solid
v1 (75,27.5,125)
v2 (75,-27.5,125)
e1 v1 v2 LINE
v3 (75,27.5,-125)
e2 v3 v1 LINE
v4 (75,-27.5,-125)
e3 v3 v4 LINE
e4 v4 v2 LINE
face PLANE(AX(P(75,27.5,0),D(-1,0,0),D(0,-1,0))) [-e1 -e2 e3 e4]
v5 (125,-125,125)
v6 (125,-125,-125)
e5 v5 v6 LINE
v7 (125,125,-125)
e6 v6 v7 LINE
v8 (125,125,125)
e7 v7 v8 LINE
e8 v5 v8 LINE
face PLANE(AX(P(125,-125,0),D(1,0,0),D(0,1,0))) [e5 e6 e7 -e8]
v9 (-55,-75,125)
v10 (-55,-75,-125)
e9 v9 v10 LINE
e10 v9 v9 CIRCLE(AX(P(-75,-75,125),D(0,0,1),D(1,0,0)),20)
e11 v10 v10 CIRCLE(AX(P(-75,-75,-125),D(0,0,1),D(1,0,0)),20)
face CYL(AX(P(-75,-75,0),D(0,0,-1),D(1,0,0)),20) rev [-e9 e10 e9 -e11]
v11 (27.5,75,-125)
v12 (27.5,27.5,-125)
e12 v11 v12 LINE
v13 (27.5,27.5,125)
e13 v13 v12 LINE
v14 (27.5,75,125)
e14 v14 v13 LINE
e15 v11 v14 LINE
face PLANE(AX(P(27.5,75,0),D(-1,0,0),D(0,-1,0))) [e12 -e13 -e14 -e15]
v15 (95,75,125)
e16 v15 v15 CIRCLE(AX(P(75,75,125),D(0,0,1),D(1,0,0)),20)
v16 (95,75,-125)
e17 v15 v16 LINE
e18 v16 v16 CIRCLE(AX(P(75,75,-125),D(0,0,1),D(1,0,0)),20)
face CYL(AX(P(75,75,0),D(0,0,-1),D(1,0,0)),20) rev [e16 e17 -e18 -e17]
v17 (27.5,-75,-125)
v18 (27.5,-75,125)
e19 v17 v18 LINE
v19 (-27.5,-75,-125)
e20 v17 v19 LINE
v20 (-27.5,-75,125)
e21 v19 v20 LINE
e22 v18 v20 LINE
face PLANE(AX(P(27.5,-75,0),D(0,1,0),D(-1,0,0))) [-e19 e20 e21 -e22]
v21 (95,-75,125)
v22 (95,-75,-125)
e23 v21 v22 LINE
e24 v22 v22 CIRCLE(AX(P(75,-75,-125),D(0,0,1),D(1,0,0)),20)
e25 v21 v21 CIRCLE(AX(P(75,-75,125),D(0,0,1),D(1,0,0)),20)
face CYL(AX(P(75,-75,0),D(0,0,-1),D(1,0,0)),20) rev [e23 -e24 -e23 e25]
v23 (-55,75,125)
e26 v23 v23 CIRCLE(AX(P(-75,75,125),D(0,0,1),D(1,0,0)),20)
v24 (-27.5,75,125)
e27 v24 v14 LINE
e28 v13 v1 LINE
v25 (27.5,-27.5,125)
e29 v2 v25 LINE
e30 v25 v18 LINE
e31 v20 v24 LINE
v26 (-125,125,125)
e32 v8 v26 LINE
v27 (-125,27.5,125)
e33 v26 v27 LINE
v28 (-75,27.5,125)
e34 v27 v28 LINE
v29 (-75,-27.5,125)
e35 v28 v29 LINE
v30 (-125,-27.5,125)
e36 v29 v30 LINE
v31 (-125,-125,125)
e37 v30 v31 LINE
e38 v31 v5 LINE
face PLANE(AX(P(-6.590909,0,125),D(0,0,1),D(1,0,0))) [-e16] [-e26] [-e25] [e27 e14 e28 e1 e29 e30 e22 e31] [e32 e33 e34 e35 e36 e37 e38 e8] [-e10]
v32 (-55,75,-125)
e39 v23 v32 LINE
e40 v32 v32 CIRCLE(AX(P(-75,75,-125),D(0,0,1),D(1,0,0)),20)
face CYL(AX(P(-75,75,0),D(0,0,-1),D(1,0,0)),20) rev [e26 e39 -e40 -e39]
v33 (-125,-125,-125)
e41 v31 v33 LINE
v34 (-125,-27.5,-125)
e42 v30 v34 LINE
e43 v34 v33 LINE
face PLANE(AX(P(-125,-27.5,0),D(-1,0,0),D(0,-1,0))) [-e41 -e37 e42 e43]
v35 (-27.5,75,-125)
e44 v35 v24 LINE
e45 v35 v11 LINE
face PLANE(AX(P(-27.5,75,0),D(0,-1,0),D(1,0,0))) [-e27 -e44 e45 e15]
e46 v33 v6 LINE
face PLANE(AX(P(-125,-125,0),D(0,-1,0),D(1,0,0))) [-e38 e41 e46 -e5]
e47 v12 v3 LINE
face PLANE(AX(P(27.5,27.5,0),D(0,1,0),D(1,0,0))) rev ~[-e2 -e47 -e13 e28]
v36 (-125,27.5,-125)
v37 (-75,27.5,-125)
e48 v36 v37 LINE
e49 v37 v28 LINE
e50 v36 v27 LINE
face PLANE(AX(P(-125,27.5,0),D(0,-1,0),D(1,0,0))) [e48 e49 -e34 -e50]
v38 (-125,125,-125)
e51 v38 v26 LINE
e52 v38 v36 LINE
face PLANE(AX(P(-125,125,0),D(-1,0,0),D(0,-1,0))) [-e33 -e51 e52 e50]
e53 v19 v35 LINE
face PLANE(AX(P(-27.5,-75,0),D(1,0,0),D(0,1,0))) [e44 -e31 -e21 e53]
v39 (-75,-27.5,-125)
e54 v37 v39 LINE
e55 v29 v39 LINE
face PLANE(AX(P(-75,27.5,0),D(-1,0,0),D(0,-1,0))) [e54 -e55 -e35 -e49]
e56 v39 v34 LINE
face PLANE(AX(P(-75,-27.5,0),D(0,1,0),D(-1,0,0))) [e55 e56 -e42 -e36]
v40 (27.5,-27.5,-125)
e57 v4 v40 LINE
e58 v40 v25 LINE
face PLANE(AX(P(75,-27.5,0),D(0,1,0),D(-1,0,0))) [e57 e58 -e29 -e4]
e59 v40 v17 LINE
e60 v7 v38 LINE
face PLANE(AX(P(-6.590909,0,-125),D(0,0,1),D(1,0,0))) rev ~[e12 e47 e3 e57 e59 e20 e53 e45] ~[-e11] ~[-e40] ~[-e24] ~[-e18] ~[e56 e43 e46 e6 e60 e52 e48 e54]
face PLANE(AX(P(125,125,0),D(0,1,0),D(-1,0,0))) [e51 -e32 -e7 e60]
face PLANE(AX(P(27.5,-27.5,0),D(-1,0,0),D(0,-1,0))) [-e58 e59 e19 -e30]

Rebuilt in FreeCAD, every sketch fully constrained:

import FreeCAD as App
import Part
import Sketcher


def add_polygon(sketch, points):
    """Adds a closed chain of lines whose ends are joined by coincident constraints."""
    first, n = sketch.GeometryCount, len(points)
    for a, b in zip(points, points[1:] + points[:1]):
        sketch.addGeometry(Part.LineSegment(App.Vector(*a, 0), App.Vector(*b, 0)), False)
    for i in range(n):
        sketch.addConstraint(Sketcher.Constraint("Coincident", first + i, 2, first + (i + 1) % n, 1))

doc = App.newDocument("Part")
body = doc.addObject("PartDesign::Body", "Body")

# Sketch on XY plane
sketch1 = doc.addObject("Sketcher::SketchObject", "Sketch")
body.addObject(sketch1)
sketch1.AttachmentSupport = (doc.XY_Plane, [""])
sketch1.MapMode = "FlatFace"
add_polygon(sketch1, [(125, -125), (125, 125), (-125, 125), (-125, 27.5), (-75, 27.5), (-75, -27.5), (-125, -27.5), (-125, -125)])  # lines 0-7
sketch1.addGeometry(Part.Circle(App.Vector(-75, -75, 0), App.Vector(0, 0, 1), 20), False)  # 8
sketch1.addGeometry(Part.Circle(App.Vector(75, -75, 0), App.Vector(0, 0, 1), 20), False)  # 9
sketch1.addGeometry(Part.Circle(App.Vector(-75, 75, 0), App.Vector(0, 0, 1), 20), False)  # 10
add_polygon(sketch1, [(27.5, -75), (-27.5, -75), (-27.5, 75), (27.5, 75), (27.5, 27.5), (75, 27.5), (75, -27.5), (27.5, -27.5)])  # lines 11-18
sketch1.addGeometry(Part.Circle(App.Vector(75, 75, 0), App.Vector(0, 0, 1), 20), False)  # 19
sketch1.addConstraint(Sketcher.Constraint("Vertical", 0))
sketch1.addConstraint(Sketcher.Constraint("Horizontal", 1))
sketch1.addConstraint(Sketcher.Constraint("Vertical", 2))
sketch1.addConstraint(Sketcher.Constraint("Horizontal", 3))
sketch1.addConstraint(Sketcher.Constraint("Vertical", 4))
sketch1.addConstraint(Sketcher.Constraint("Horizontal", 5))
sketch1.addConstraint(Sketcher.Constraint("Vertical", 6))
sketch1.addConstraint(Sketcher.Constraint("Horizontal", 7))
sketch1.addConstraint(Sketcher.Constraint("Horizontal", 11))
sketch1.addConstraint(Sketcher.Constraint("Vertical", 12))
sketch1.addConstraint(Sketcher.Constraint("Horizontal", 13))
sketch1.addConstraint(Sketcher.Constraint("Vertical", 14))
sketch1.addConstraint(Sketcher.Constraint("Horizontal", 15))
sketch1.addConstraint(Sketcher.Constraint("Vertical", 16))
sketch1.addConstraint(Sketcher.Constraint("Horizontal", 17))
sketch1.addConstraint(Sketcher.Constraint("Vertical", 18))
sketch1.addConstraint(Sketcher.Constraint("Equal", 8, 9))
sketch1.addConstraint(Sketcher.Constraint("Equal", 9, 10))
sketch1.addConstraint(Sketcher.Constraint("Equal", 10, 19))
sketch1.addConstraint(Sketcher.Constraint("Symmetric", 9, 3, 10, 3, -1, 1))
sketch1.addConstraint(Sketcher.Constraint("Symmetric", 8, 3, 19, 3, -1, 1))
sketch1.addConstraint(Sketcher.Constraint("Symmetric", 0, 2, 6, 2, -1, 1))
sketch1.addConstraint(Sketcher.Constraint("Symmetric", 11, 2, 13, 2, -1, 1))
sketch1.addConstraint(Sketcher.Constraint("Symmetric", 4, 2, 15, 2, -1, 1))
sketch1.addConstraint(Sketcher.Constraint("Symmetric", 8, 3, 9, 3, -2))
sketch1.addConstraint(Sketcher.Constraint("Symmetric", 2, 2, 5, 2, -1))
sketch1.addConstraint(Sketcher.Constraint("Symmetric", 14, 2, 17, 2, -1))
sketch1.addConstraint(Sketcher.Constraint("Horizontal", 9, 3, 11, 2))
sketch1.addConstraint(Sketcher.Constraint("Vertical", 10, 3, 3, 2))
sketch1.addConstraint(Sketcher.Constraint("Equal", 7, 0))
sketch1.addConstraint(Sketcher.Constraint("Equal", 13, 4))
sketch1.addConstraint(Sketcher.Constraint("Equal", 17, 14))
sketch1.addConstraint(Sketcher.Constraint("Diameter", 8, 40.0))
sketch1.addConstraint(Sketcher.Constraint("DistanceX", 1, 2, 1, 1, 250.0))
sketch1.addConstraint(Sketcher.Constraint("DistanceX", 3, 1, 3, 2, 50.0))
sketch1.addConstraint(Sketcher.Constraint("DistanceX", 11, 2, 11, 1, 55.0))
pad1 = doc.addObject("PartDesign::Pad", "Pad")
body.addObject(pad1)
pad1.Profile = sketch1
pad1.Length = 250
pad1.Midplane = True

doc.recompute()
